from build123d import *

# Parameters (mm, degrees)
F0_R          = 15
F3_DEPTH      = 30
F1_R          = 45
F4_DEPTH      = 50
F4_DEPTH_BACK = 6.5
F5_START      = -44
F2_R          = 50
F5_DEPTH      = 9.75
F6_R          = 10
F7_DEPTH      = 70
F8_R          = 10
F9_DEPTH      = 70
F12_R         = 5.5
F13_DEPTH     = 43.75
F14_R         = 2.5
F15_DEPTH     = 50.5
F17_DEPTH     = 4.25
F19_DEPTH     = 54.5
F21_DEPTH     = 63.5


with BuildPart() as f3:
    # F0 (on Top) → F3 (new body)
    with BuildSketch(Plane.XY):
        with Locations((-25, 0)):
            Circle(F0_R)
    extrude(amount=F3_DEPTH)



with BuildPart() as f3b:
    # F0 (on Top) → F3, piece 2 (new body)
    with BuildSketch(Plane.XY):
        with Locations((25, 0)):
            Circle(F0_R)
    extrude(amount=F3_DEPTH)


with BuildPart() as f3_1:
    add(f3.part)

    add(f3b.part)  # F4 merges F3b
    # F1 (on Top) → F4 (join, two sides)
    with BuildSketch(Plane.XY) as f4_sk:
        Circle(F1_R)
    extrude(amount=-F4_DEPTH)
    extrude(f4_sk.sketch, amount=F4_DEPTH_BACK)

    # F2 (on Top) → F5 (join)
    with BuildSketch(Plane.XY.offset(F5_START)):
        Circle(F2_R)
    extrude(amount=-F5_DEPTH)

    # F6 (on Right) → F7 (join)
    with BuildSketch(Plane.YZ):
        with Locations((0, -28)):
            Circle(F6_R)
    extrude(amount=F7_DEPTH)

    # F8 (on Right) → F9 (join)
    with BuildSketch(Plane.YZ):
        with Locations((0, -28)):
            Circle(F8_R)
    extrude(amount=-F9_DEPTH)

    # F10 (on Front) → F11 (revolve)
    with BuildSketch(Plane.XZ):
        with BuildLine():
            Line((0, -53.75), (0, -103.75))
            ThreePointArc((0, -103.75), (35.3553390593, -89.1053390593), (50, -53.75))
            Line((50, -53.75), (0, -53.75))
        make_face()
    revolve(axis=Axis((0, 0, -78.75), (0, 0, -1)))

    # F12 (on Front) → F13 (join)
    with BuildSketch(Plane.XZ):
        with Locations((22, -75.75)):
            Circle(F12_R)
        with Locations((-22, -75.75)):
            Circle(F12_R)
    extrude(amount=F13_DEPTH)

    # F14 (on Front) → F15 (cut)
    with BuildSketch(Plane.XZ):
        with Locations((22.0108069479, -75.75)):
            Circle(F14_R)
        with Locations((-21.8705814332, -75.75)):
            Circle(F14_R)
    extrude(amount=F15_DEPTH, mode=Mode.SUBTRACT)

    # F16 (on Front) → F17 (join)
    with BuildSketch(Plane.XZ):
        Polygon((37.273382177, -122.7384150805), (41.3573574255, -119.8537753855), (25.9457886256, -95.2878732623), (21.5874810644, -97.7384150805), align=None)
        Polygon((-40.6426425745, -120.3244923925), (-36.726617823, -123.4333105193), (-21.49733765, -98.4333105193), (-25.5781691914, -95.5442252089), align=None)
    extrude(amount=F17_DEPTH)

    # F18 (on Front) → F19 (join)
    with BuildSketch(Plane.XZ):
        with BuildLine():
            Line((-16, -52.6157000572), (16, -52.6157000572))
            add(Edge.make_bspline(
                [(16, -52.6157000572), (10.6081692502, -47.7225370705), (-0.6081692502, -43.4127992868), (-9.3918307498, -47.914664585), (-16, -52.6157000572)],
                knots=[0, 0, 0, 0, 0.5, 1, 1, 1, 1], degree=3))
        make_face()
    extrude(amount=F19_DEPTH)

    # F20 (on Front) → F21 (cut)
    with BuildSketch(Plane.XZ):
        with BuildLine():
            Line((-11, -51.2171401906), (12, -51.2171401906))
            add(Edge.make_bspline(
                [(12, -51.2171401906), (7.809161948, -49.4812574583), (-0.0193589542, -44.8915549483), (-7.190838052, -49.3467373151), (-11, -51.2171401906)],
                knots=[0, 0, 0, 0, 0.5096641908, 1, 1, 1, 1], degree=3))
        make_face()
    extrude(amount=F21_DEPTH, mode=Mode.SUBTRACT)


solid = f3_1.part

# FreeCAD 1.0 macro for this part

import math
import FreeCAD as App
import Part
import Sketcher
from FreeCAD import Vector

doc = App.newDocument("Part")
body = doc.addObject("PartDesign::Body", "Body")

# Sketch on XY plane
sketch1 = body.newObject("Sketcher::SketchObject", "Sketch")
sketch1.AttachmentSupport = (doc.getObject("XY_Plane"), [""])
sketch1.MapMode = "FlatFace"
sketch1.addGeometry(Part.Circle(Vector(-25, 0, 0), Vector(0, 0, 1), 15), False)
sketch1.addConstraint([
    Sketcher.Constraint("PointOnObject", 0, 3, -1),
    Sketcher.Constraint("Diameter", 0, 30.0),
    Sketcher.Constraint("DistanceX", 0, 3, -1, 1, 25.0),
])
pad1 = body.newObject("PartDesign::Pad", "Pad")
pad1.Profile = sketch1
pad1.Length = 30
body2 = doc.addObject("PartDesign::Body", "Body001")

# Sketch on XY plane
sketch2 = body2.newObject("Sketcher::SketchObject", "Sketch001")
sketch2.AttachmentSupport = (doc.getObject("XY_Plane001"), [""])
sketch2.MapMode = "FlatFace"
sketch2.addGeometry(Part.Circle(Vector(25, 0, 0), Vector(0, 0, 1), 15), False)
sketch2.addConstraint([
    Sketcher.Constraint("PointOnObject", 0, 3, -1),
    Sketcher.Constraint("Diameter", 0, 30.0),
    Sketcher.Constraint("DistanceX", -1, 1, 0, 3, 25.0),
])
pad2 = body2.newObject("PartDesign::Pad", "Pad001")
pad2.Profile = sketch2
pad2.Length = 30
body.AllowCompound = True
doc.recompute()

boolean = body.newObject("PartDesign::Boolean", "Boolean")
boolean.Type = "Fuse"
boolean.addObjects([body2])

# Sketch on XY plane
sketch3 = body.newObject("Sketcher::SketchObject", "Sketch002")
sketch3.AttachmentSupport = (doc.getObject("XY_Plane"), [""])
sketch3.MapMode = "FlatFace"
sketch3.addGeometry(Part.Circle(Vector(0, 0, 0), Vector(0, 0, 1), 45), False)
sketch3.addConstraint([
    Sketcher.Constraint("Coincident", 0, 3, -1, 1),
    Sketcher.Constraint("Diameter", 0, 90.0),
])
pad3 = body.newObject("PartDesign::Pad", "Pad002")
pad3.Profile = sketch3
pad3.Type = "TwoLengths"
pad3.Length = 50
pad3.Length2 = 6.5
pad3.Reversed = True

# Sketch on XY plane
sketch4 = body.newObject("Sketcher::SketchObject", "Sketch003")
sketch4.AttachmentSupport = (doc.getObject("XY_Plane"), [""])
sketch4.MapMode = "FlatFace"
sketch4.AttachmentOffset = App.Placement(Vector(0, 0, -44), App.Rotation())
sketch4.addGeometry(Part.Circle(Vector(0, 0, 0), Vector(0, 0, 1), 50), False)
sketch4.addConstraint([
    Sketcher.Constraint("Coincident", 0, 3, -1, 1),
    Sketcher.Constraint("Diameter", 0, 100.0),
])
pad4 = body.newObject("PartDesign::Pad", "Pad003")
pad4.Profile = sketch4
pad4.Length = 9.75
pad4.Reversed = True

# Sketch on YZ plane
sketch5 = body.newObject("Sketcher::SketchObject", "Sketch004")
sketch5.AttachmentSupport = (doc.getObject("YZ_Plane"), [""])
sketch5.MapMode = "FlatFace"
sketch5.addGeometry(Part.Circle(Vector(0, -28, 0), Vector(0, 0, 1), 10), False)
sketch5.addConstraint([
    Sketcher.Constraint("PointOnObject", 0, 3, -2),
    Sketcher.Constraint("Diameter", 0, 20.0),
    Sketcher.Constraint("DistanceY", 0, 3, -1, 1, 28.0),
])
pad5 = body.newObject("PartDesign::Pad", "Pad004")
pad5.Profile = sketch5
pad5.Length = 70

# Sketch on YZ plane
sketch6 = body.newObject("Sketcher::SketchObject", "Sketch005")
sketch6.AttachmentSupport = (doc.getObject("YZ_Plane"), [""])
sketch6.MapMode = "FlatFace"
sketch6.addGeometry(Part.Circle(Vector(0, -28, 0), Vector(0, 0, 1), 10), False)
sketch6.addConstraint([
    Sketcher.Constraint("PointOnObject", 0, 3, -2),
    Sketcher.Constraint("Diameter", 0, 20.0),
    Sketcher.Constraint("DistanceY", 0, 3, -1, 1, 28.0),
])
pad6 = body.newObject("PartDesign::Pad", "Pad005")
pad6.Profile = sketch6
pad6.Length = 70
pad6.Reversed = True

# Sketch on XZ plane
sketch7 = body.newObject("Sketcher::SketchObject", "Sketch006")
sketch7.AttachmentSupport = (doc.getObject("XZ_Plane"), [""])
sketch7.MapMode = "FlatFace"
sketch7.addGeometry([
    Part.LineSegment(Vector(0, -54, 0), Vector(0, -104, 0)),
    Part.ArcOfCircle(Part.Circle(Vector(0, -54, 0), Vector(0, 0, 1), 50), math.radians(-90), math.radians(0)),
    Part.LineSegment(Vector(50, -54, 0), Vector(0, -54, 0)),
], False)
sketch7.addConstraint([
    Sketcher.Constraint("Coincident", 0, 2, 1, 1),
    Sketcher.Constraint("Coincident", 1, 2, 2, 1),
    Sketcher.Constraint("Coincident", 2, 2, 0, 1),
    Sketcher.Constraint("Vertical", 0),
    Sketcher.Constraint("Horizontal", 2),
    Sketcher.Constraint("Coincident", 2, 2, 1, 3),
    Sketcher.Constraint("PointOnObject", 1, 3, -2),
    Sketcher.Constraint("Radius", 1, 50.0),
    Sketcher.Constraint("DistanceY", 1, 3, -1, 1, 53.75),
])
revolution = body.newObject("PartDesign::Revolution", "Revolution")
revolution.Profile = sketch7
revolution.ReferenceAxis = (sketch7, ["V_Axis"])
revolution.Angle = 360

# Sketch on XZ plane
sketch8 = body.newObject("Sketcher::SketchObject", "Sketch007")
sketch8.AttachmentSupport = (doc.getObject("XZ_Plane"), [""])
sketch8.MapMode = "FlatFace"
sketch8.addGeometry([
    Part.Circle(Vector(22, -76, 0), Vector(0, 0, 1), 6),
    Part.Circle(Vector(-22, -76, 0), Vector(0, 0, 1), 6),
], False)
sketch8.addConstraint([
    Sketcher.Constraint("Equal", 0, 1),
    Sketcher.Constraint("Symmetric", 0, 3, 1, 3, -2),
    Sketcher.Constraint("Diameter", 0, 11.0),
    Sketcher.Constraint("DistanceX", -1, 1, 0, 3, 22.0),
    Sketcher.Constraint("DistanceY", 0, 3, -1, 1, 75.75),
])
pad7 = body.newObject("PartDesign::Pad", "Pad006")
pad7.Profile = sketch8
pad7.Length = 43.75

# Sketch on XZ plane
sketch9 = body.newObject("Sketcher::SketchObject", "Sketch008")
sketch9.AttachmentSupport = (doc.getObject("XZ_Plane"), [""])
sketch9.MapMode = "FlatFace"
sketch9.addGeometry([
    Part.Circle(Vector(22, -75.8, 0), Vector(0, 0, 1), 2.5),
    Part.Circle(Vector(-21.9, -75.8, 0), Vector(0, 0, 1), 2.5),
], False)
sketch9.addConstraint([
    Sketcher.Constraint("Equal", 0, 1),
    Sketcher.Constraint("Horizontal", 0, 3, 1, 3),
    Sketcher.Constraint("Diameter", 0, 5.0),
    Sketcher.Constraint("DistanceY", 0, 3, -1, 1, 75.75),
    Sketcher.Constraint("DistanceX", 1, 3, -1, 1, 21.870581),
    Sketcher.Constraint("DistanceX", 1, 3, 0, 3, 43.881388),
])
pocket1 = body.newObject("PartDesign::Pocket", "Pocket")
pocket1.Profile = sketch9
pocket1.Length = 50.5
pocket1.Reversed = True

# Sketch on XZ plane
sketch10 = body.newObject("Sketcher::SketchObject", "Sketch009")
sketch10.AttachmentSupport = (doc.getObject("XZ_Plane"), [""])
sketch10.MapMode = "FlatFace"
sketch10.addGeometry([
    Part.LineSegment(Vector(37.3, -122.7, 0), Vector(41.4, -119.9, 0)),  # 0
    Part.LineSegment(Vector(41.4, -119.9, 0), Vector(25.9, -95.3, 0)),  # 1
    Part.LineSegment(Vector(25.9, -95.3, 0), Vector(21.6, -97.7, 0)),  # 2
    Part.LineSegment(Vector(21.6, -97.7, 0), Vector(37.3, -122.7, 0)),  # 3
    Part.LineSegment(Vector(-40.6, -120.3, 0), Vector(-36.7, -123.4, 0)),  # 4
    Part.LineSegment(Vector(-36.7, -123.4, 0), Vector(-21.5, -98.4, 0)),  # 5
    Part.LineSegment(Vector(-21.5, -98.4, 0), Vector(-25.6, -95.5, 0)),  # 6
    Part.LineSegment(Vector(-25.6, -95.5, 0), Vector(-40.6, -120.3, 0)),  # 7
], False)
sketch10.addConstraint([
    Sketcher.Constraint("Coincident", 0, 2, 1, 1),
    Sketcher.Constraint("Coincident", 1, 2, 2, 1),
    Sketcher.Constraint("Coincident", 2, 2, 3, 1),
    Sketcher.Constraint("Coincident", 3, 2, 0, 1),
    Sketcher.Constraint("Coincident", 4, 2, 5, 1),
    Sketcher.Constraint("Coincident", 5, 2, 6, 1),
    Sketcher.Constraint("Coincident", 6, 2, 7, 1),
    Sketcher.Constraint("Coincident", 7, 2, 4, 1),
    Sketcher.Constraint("Equal", 0, 2),
    Sketcher.Constraint("Equal", 2, 4),
    Sketcher.Constraint("Equal", 4, 6),
    Sketcher.Constraint("Equal", 1, 7),
    Sketcher.Constraint("Distance", 0, 5.0),
    Sketcher.Constraint("Distance", 1, 29.0),
    Sketcher.Constraint("DistanceY", 3, 2, 2, 2, 25.0),
    Sketcher.Constraint("DistanceX", 4, 2, 3, 2, 74.0),
    Sketcher.Constraint("DistanceY", 4, 2, 5, 2, 25.0),
    Sketcher.Constraint("DistanceX", 2, 2, 3, 2, 15.685901),
    Sketcher.Constraint("DistanceX", -1, 1, 1, 2, 25.945789),
    Sketcher.Constraint("DistanceX", -1, 1, 2, 2, 21.587481),
    Sketcher.Constraint("DistanceY", 4, 2, -1, 1, 123.433311),
    Sketcher.Constraint("DistanceX", 6, 2, -1, 1, 25.578169),
    Sketcher.Constraint("DistanceX", 4, 2, 5, 2, 15.22928),
    Sketcher.Constraint("DistanceY", 2, 2, 6, 2, 2.19419),
])
pad8 = body.newObject("PartDesign::Pad", "Pad007")
pad8.Profile = sketch10
pad8.Length = 4.25

# Sketch on XZ plane
sketch11 = body.newObject("Sketcher::SketchObject", "Sketch010")
sketch11.AttachmentSupport = (doc.getObject("XZ_Plane"), [""])
sketch11.MapMode = "FlatFace"
sketch11.addGeometry([
    Part.LineSegment(Vector(-16, -52.6157, 0), Vector(16, -52.6157, 0)),
    Part.BSplineCurve([Vector(16, -52.6157, 0), Vector(10.608169, -47.722537, 0), Vector(-0.608169, -43.412799, 0), Vector(-9.391831, -47.914665, 0), Vector(-16, -52.6157, 0)], [4, 1, 4], [0, 0.5, 1], False, 3, [1, 1, 1, 1, 1], False),
], False)
sketch11.addConstraint([
    Sketcher.Constraint("Block", 1),
    Sketcher.Constraint("Coincident", 0, 1, 1, 2),
    Sketcher.Constraint("Coincident", 1, 1, 0, 2),
])
pad9 = body.newObject("PartDesign::Pad", "Pad008")
pad9.Profile = sketch11
pad9.Length = 54.5

# Sketch on XZ plane
sketch12 = body.newObject("Sketcher::SketchObject", "Sketch011")
sketch12.AttachmentSupport = (doc.getObject("XZ_Plane"), [""])
sketch12.MapMode = "FlatFace"
sketch12.addGeometry([
    Part.LineSegment(Vector(-11, -51.21714, 0), Vector(12, -51.21714, 0)),
    Part.BSplineCurve([Vector(12, -51.21714, 0), Vector(7.809162, -49.481257, 0), Vector(-0.019359, -44.891555, 0), Vector(-7.190838, -49.346737, 0), Vector(-11, -51.21714, 0)], [4, 1, 4], [0, 0.509664191, 1], False, 3, [1, 1, 1, 1, 1], False),
], False)
sketch12.addConstraint([
    Sketcher.Constraint("Block", 1),
    Sketcher.Constraint("Coincident", 0, 1, 1, 2),
    Sketcher.Constraint("Coincident", 1, 1, 0, 2),
])
pocket2 = body.newObject("PartDesign::Pocket", "Pocket001")
pocket2.Profile = sketch12
pocket2.Length = 63.5
pocket2.Reversed = True

doc.recompute()
